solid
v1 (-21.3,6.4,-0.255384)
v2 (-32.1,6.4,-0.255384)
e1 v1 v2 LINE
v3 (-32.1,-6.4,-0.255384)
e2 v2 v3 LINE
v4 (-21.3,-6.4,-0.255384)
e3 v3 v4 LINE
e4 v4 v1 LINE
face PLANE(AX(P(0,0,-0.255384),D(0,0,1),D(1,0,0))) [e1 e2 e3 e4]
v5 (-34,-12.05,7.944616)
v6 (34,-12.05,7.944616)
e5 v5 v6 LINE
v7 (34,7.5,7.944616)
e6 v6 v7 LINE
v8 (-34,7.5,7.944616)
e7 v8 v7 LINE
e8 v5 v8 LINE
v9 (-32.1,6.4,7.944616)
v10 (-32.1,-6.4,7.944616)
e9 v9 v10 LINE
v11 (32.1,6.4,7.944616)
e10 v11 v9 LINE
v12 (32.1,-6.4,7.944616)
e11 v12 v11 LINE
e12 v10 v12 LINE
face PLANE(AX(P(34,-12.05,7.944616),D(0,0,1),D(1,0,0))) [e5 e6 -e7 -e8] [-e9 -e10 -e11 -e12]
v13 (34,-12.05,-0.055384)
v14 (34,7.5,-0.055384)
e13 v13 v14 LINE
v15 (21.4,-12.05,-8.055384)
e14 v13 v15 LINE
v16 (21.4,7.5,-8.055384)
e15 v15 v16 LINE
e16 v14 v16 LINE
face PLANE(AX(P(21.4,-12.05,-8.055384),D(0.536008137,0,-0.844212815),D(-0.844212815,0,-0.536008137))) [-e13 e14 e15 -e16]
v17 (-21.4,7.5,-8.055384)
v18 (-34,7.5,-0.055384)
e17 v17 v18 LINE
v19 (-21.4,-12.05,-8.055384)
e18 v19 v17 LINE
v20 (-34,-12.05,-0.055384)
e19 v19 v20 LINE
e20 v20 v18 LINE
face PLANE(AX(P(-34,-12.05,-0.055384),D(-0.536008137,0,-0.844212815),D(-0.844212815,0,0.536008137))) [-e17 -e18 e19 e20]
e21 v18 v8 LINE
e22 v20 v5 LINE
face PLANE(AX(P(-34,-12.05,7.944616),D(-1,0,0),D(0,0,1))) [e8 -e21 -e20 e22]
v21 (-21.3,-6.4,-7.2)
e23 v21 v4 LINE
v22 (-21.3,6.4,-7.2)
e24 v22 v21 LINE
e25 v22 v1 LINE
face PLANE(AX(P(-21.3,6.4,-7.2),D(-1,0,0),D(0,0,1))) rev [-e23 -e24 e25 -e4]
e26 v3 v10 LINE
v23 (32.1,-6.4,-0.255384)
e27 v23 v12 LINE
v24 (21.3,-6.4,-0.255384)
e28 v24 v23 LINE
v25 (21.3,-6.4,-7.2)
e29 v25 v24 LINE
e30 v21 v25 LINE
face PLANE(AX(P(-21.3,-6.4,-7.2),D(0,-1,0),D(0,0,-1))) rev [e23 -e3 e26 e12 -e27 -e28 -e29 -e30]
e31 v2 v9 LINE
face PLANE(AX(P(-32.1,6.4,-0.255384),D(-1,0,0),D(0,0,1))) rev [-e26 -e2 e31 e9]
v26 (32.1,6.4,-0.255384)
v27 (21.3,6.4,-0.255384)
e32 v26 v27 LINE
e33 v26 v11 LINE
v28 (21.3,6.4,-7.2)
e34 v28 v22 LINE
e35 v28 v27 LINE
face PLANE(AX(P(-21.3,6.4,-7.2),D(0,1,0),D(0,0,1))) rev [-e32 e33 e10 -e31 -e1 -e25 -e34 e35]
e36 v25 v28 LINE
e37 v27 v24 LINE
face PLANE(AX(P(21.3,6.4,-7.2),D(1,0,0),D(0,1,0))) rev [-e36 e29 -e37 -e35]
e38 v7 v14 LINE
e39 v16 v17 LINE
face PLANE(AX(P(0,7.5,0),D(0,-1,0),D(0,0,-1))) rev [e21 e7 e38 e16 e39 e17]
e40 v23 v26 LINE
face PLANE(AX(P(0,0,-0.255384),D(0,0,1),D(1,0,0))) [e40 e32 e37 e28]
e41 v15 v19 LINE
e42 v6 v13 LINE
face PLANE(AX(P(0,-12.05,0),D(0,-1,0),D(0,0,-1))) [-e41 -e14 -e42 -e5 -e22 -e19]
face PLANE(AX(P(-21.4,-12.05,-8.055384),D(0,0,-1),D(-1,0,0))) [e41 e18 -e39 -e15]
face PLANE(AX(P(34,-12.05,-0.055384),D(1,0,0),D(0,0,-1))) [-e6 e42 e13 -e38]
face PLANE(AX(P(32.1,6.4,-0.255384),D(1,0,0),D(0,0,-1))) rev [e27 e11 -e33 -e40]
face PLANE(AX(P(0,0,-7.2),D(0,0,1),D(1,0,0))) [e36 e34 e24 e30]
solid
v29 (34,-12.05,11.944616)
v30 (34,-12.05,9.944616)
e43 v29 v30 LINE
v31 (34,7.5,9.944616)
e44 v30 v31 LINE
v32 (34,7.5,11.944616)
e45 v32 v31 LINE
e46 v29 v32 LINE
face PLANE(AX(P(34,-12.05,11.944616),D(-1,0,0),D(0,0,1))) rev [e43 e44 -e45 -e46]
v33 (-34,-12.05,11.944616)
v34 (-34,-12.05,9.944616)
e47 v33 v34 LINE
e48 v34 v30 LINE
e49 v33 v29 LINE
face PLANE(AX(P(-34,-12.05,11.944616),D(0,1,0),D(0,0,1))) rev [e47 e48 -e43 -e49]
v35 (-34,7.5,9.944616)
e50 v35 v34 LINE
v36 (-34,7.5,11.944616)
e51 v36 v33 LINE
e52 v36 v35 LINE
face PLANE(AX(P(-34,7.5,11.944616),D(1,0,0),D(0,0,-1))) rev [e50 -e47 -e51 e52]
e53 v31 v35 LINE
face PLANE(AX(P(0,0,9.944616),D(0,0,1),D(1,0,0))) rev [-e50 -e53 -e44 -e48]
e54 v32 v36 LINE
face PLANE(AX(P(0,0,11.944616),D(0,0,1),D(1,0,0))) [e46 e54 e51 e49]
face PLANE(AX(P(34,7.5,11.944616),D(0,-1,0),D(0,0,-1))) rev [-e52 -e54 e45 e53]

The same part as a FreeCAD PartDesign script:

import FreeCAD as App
import Part
import Sketcher
Q = App.Units.Quantity

doc = App.newDocument("Part")
body = doc.addObject("PartDesign::Body", "Body")

# Sketch on XZ plane
sketch1 = body.newObject("Sketcher::SketchObject", "Sketch")
sketch1.AttachmentSupport = (doc.getObject("XZ_Plane"), [""])
sketch1.MapMode = "FlatFace"
sketch1.addGeometry(Part.LineSegment(App.Vector(-21, -8, 0), App.Vector(-34, 0, 0)), False)
sketch1.addGeometry(Part.LineSegment(App.Vector(-34, 0, 0), App.Vector(-34, 8, 0)), False)
sketch1.addGeometry(Part.LineSegment(App.Vector(-34, 8, 0), App.Vector(34, 8, 0)), False)
sketch1.addGeometry(Part.LineSegment(App.Vector(34, 8, 0), App.Vector(34, 0, 0)), False)
sketch1.addGeometry(Part.LineSegment(App.Vector(34, 0, 0), App.Vector(21, -8, 0)), False)
sketch1.addGeometry(Part.LineSegment(App.Vector(21, -8, 0), App.Vector(-21, -8, 0)), False)
sketch1.addConstraint(Sketcher.Constraint("Coincident", 0, 2, 1, 1))
sketch1.addConstraint(Sketcher.Constraint("Coincident", 1, 2, 2, 1))
sketch1.addConstraint(Sketcher.Constraint("Coincident", 2, 2, 3, 1))
sketch1.addConstraint(Sketcher.Constraint("Coincident", 3, 2, 4, 1))
sketch1.addConstraint(Sketcher.Constraint("Coincident", 4, 2, 5, 1))
sketch1.addConstraint(Sketcher.Constraint("Coincident", 5, 2, 0, 1))
sketch1.addConstraint(Sketcher.Constraint("Vertical", 1))
sketch1.addConstraint(Sketcher.Constraint("Horizontal", 2))
sketch1.addConstraint(Sketcher.Constraint("Vertical", 3))
sketch1.addConstraint(Sketcher.Constraint("Horizontal", 5))
sketch1.addConstraint(Sketcher.Constraint("Symmetric", 0, 2, 3, 2, -2))
sketch1.addConstraint(Sketcher.Constraint("Equal", 0, 4))
sketch1.addConstraint(Sketcher.Constraint("DistanceX", 2, 1, 2, 2, Q("68 mm")))
sketch1.addConstraint(Sketcher.Constraint("DistanceY", 1, 1, 1, 2, Q("8 mm")))
sketch1.addConstraint(Sketcher.Constraint("DistanceX", 5, 2, 5, 1, Q("42.8 mm")))
sketch1.addConstraint(Sketcher.Constraint("DistanceY", 4, 2, 3, 2, Q("8 mm")))
sketch1.addConstraint(Sketcher.Constraint("DistanceY", 0, 2, -1, 1, Q("0.055384 mm")))
pad1 = body.newObject("PartDesign::Pad", "Pad")
pad1.Profile = sketch1
pad1.Type = "TwoLengths"
pad1.Length = 7.5
pad1.Length2 = 12.05
pad1.Reversed = True

# Sketch on XY plane
sketch2 = body.newObject("Sketcher::SketchObject", "Sketch001")
sketch2.AttachmentSupport = (doc.getObject("XY_Plane"), [""])
sketch2.MapMode = "FlatFace"
sketch2.addGeometry(Part.LineSegment(App.Vector(-21, 6, 0), App.Vector(-21, -6, 0)), False)
sketch2.addGeometry(Part.LineSegment(App.Vector(-21, -6, 0), App.Vector(21, -6, 0)), False)
sketch2.addGeometry(Part.LineSegment(App.Vector(21, -6, 0), App.Vector(21, 6, 0)), False)
sketch2.addGeometry(Part.LineSegment(App.Vector(21, 6, 0), App.Vector(-21, 6, 0)), False)
sketch2.addConstraint(Sketcher.Constraint("Coincident", 0, 2, 1, 1))
sketch2.addConstraint(Sketcher.Constraint("Coincident", 1, 2, 2, 1))
sketch2.addConstraint(Sketcher.Constraint("Coincident", 2, 2, 3, 1))
sketch2.addConstraint(Sketcher.Constraint("Coincident", 3, 2, 0, 1))
sketch2.addConstraint(Sketcher.Constraint("Vertical", 0))
sketch2.addConstraint(Sketcher.Constraint("Horizontal", 1))
sketch2.addConstraint(Sketcher.Constraint("Vertical", 2))
sketch2.addConstraint(Sketcher.Constraint("Horizontal", 3))
sketch2.addConstraint(Sketcher.Constraint("Symmetric", 0, 2, 2, 2, -1, 1))
sketch2.addConstraint(Sketcher.Constraint("DistanceX", 1, 1, 1, 2, Q("42.6 mm")))
sketch2.addConstraint(Sketcher.Constraint("DistanceY", 0, 2, 0, 1, Q("12.8 mm")))
pocket1 = body.newObject("PartDesign::Pocket", "Pocket")
pocket1.Profile = sketch2
pocket1.Length = 7.2

# Sketch on XY plane
sketch3 = body.newObject("Sketcher::SketchObject", "Sketch002")
sketch3.AttachmentSupport = (doc.getObject("XY_Plane"), [""])
sketch3.MapMode = "FlatFace"
sketch3.addGeometry(Part.LineSegment(App.Vector(-21, 6, 0), App.Vector(-21, -6, 0)), False)
sketch3.addGeometry(Part.LineSegment(App.Vector(-21, -6, 0), App.Vector(21, -6, 0)), False)
sketch3.addGeometry(Part.LineSegment(App.Vector(21, -6, 0), App.Vector(21, 6, 0)), False)
sketch3.addGeometry(Part.LineSegment(App.Vector(21, 6, 0), App.Vector(-21, 6, 0)), False)
sketch3.addConstraint(Sketcher.Constraint("Coincident", 0, 2, 1, 1))
sketch3.addConstraint(Sketcher.Constraint("Coincident", 1, 2, 2, 1))
sketch3.addConstraint(Sketcher.Constraint("Coincident", 2, 2, 3, 1))
sketch3.addConstraint(Sketcher.Constraint("Coincident", 3, 2, 0, 1))
sketch3.addConstraint(Sketcher.Constraint("Vertical", 0))
sketch3.addConstraint(Sketcher.Constraint("Horizontal", 1))
sketch3.addConstraint(Sketcher.Constraint("Vertical", 2))
sketch3.addConstraint(Sketcher.Constraint("Horizontal", 3))
sketch3.addConstraint(Sketcher.Constraint("Symmetric", 0, 2, 2, 2, -1, 1))
sketch3.addConstraint(Sketcher.Constraint("DistanceX", 1, 1, 1, 2, Q("42.6 mm")))
sketch3.addConstraint(Sketcher.Constraint("DistanceY", 0, 2, 0, 1, Q("12.8 mm")))
pocket2 = body.newObject("PartDesign::Pocket", "Pocket001")
pocket2.Profile = sketch3
pocket2.Type = "ThroughAll"
pocket2.Reversed = True

# Sketch on XY plane
sketch4 = body.newObject("Sketcher::SketchObject", "Sketch003")
sketch4.AttachmentSupport = (doc.getObject("XY_Plane"), [""])
sketch4.MapMode = "FlatFace"
sketch4.AttachmentOffset = App.Placement(App.Vector(0, 0, 7.944616), App.Rotation())
sketch4.addGeometry(Part.LineSegment(App.Vector(-32, 6, 0), App.Vector(-32, -6, 0)), False)
sketch4.addGeometry(Part.LineSegment(App.Vector(-32, -6, 0), App.Vector(32, -6, 0)), False)
sketch4.addGeometry(Part.LineSegment(App.Vector(32, -6, 0), App.Vector(32, 6, 0)), False)
sketch4.addGeometry(Part.LineSegment(App.Vector(32, 6, 0), App.Vector(-32, 6, 0)), False)
sketch4.addConstraint(Sketcher.Constraint("Coincident", 0, 2, 1, 1))
sketch4.addConstraint(Sketcher.Constraint("Coincident", 1, 2, 2, 1))
sketch4.addConstraint(Sketcher.Constraint("Coincident", 2, 2, 3, 1))
sketch4.addConstraint(Sketcher.Constraint("Coincident", 3, 2, 0, 1))
sketch4.addConstraint(Sketcher.Constraint("Vertical", 0))
sketch4.addConstraint(Sketcher.Constraint("Horizontal", 1))
sketch4.addConstraint(Sketcher.Constraint("Vertical", 2))
sketch4.addConstraint(Sketcher.Constraint("Horizontal", 3))
sketch4.addConstraint(Sketcher.Constraint("Symmetric", 0, 2, 2, 2, -1, 1))
sketch4.addConstraint(Sketcher.Constraint("DistanceX", 1, 1, 1, 2, Q("64.2 mm")))
sketch4.addConstraint(Sketcher.Constraint("DistanceY", 0, 2, 0, 1, Q("12.8 mm")))
pocket3 = body.newObject("PartDesign::Pocket", "Pocket002")
pocket3.Profile = sketch4
pocket3.Length = 8.2
body2 = doc.addObject("PartDesign::Body", "Body001")

# Sketch on XY plane
sketch5 = body2.newObject("Sketcher::SketchObject", "Sketch004")
sketch5.AttachmentSupport = (doc.getObject("XY_Plane001"), [""])
sketch5.MapMode = "FlatFace"
sketch5.AttachmentOffset = App.Placement(App.Vector(0, 0, 9.944616), App.Rotation())
sketch5.addGeometry(Part.LineSegment(App.Vector(-34, 8, 0), App.Vector(-34, -12, 0)), False)
sketch5.addGeometry(Part.LineSegment(App.Vector(-34, -12, 0), App.Vector(34, -12, 0)), False)
sketch5.addGeometry(Part.LineSegment(App.Vector(34, -12, 0), App.Vector(34, 8, 0)), False)
sketch5.addGeometry(Part.LineSegment(App.Vector(34, 8, 0), App.Vector(-34, 8, 0)), False)
sketch5.addConstraint(Sketcher.Constraint("Coincident", 0, 2, 1, 1))
sketch5.addConstraint(Sketcher.Constraint("Coincident", 1, 2, 2, 1))
sketch5.addConstraint(Sketcher.Constraint("Coincident", 2, 2, 3, 1))
sketch5.addConstraint(Sketcher.Constraint("Coincident", 3, 2, 0, 1))
sketch5.addConstraint(Sketcher.Constraint("Vertical", 0))
sketch5.addConstraint(Sketcher.Constraint("Horizontal", 1))
sketch5.addConstraint(Sketcher.Constraint("Vertical", 2))
sketch5.addConstraint(Sketcher.Constraint("Horizontal", 3))
sketch5.addConstraint(Sketcher.Constraint("DistanceX", 1, 1, 1, 2, Q("68 mm")))
sketch5.addConstraint(Sketcher.Constraint("DistanceX", 0, 2, -1, 1, Q("34 mm")))
sketch5.addConstraint(Sketcher.Constraint("DistanceY", 0, 2, 0, 1, Q("19.55 mm")))
sketch5.addConstraint(Sketcher.Constraint("DistanceY", -1, 1, 2, 2, Q("7.5 mm")))
pad2 = body2.newObject("PartDesign::Pad", "Pad001")
pad2.Profile = sketch5
pad2.Length = 2

doc.recompute()
